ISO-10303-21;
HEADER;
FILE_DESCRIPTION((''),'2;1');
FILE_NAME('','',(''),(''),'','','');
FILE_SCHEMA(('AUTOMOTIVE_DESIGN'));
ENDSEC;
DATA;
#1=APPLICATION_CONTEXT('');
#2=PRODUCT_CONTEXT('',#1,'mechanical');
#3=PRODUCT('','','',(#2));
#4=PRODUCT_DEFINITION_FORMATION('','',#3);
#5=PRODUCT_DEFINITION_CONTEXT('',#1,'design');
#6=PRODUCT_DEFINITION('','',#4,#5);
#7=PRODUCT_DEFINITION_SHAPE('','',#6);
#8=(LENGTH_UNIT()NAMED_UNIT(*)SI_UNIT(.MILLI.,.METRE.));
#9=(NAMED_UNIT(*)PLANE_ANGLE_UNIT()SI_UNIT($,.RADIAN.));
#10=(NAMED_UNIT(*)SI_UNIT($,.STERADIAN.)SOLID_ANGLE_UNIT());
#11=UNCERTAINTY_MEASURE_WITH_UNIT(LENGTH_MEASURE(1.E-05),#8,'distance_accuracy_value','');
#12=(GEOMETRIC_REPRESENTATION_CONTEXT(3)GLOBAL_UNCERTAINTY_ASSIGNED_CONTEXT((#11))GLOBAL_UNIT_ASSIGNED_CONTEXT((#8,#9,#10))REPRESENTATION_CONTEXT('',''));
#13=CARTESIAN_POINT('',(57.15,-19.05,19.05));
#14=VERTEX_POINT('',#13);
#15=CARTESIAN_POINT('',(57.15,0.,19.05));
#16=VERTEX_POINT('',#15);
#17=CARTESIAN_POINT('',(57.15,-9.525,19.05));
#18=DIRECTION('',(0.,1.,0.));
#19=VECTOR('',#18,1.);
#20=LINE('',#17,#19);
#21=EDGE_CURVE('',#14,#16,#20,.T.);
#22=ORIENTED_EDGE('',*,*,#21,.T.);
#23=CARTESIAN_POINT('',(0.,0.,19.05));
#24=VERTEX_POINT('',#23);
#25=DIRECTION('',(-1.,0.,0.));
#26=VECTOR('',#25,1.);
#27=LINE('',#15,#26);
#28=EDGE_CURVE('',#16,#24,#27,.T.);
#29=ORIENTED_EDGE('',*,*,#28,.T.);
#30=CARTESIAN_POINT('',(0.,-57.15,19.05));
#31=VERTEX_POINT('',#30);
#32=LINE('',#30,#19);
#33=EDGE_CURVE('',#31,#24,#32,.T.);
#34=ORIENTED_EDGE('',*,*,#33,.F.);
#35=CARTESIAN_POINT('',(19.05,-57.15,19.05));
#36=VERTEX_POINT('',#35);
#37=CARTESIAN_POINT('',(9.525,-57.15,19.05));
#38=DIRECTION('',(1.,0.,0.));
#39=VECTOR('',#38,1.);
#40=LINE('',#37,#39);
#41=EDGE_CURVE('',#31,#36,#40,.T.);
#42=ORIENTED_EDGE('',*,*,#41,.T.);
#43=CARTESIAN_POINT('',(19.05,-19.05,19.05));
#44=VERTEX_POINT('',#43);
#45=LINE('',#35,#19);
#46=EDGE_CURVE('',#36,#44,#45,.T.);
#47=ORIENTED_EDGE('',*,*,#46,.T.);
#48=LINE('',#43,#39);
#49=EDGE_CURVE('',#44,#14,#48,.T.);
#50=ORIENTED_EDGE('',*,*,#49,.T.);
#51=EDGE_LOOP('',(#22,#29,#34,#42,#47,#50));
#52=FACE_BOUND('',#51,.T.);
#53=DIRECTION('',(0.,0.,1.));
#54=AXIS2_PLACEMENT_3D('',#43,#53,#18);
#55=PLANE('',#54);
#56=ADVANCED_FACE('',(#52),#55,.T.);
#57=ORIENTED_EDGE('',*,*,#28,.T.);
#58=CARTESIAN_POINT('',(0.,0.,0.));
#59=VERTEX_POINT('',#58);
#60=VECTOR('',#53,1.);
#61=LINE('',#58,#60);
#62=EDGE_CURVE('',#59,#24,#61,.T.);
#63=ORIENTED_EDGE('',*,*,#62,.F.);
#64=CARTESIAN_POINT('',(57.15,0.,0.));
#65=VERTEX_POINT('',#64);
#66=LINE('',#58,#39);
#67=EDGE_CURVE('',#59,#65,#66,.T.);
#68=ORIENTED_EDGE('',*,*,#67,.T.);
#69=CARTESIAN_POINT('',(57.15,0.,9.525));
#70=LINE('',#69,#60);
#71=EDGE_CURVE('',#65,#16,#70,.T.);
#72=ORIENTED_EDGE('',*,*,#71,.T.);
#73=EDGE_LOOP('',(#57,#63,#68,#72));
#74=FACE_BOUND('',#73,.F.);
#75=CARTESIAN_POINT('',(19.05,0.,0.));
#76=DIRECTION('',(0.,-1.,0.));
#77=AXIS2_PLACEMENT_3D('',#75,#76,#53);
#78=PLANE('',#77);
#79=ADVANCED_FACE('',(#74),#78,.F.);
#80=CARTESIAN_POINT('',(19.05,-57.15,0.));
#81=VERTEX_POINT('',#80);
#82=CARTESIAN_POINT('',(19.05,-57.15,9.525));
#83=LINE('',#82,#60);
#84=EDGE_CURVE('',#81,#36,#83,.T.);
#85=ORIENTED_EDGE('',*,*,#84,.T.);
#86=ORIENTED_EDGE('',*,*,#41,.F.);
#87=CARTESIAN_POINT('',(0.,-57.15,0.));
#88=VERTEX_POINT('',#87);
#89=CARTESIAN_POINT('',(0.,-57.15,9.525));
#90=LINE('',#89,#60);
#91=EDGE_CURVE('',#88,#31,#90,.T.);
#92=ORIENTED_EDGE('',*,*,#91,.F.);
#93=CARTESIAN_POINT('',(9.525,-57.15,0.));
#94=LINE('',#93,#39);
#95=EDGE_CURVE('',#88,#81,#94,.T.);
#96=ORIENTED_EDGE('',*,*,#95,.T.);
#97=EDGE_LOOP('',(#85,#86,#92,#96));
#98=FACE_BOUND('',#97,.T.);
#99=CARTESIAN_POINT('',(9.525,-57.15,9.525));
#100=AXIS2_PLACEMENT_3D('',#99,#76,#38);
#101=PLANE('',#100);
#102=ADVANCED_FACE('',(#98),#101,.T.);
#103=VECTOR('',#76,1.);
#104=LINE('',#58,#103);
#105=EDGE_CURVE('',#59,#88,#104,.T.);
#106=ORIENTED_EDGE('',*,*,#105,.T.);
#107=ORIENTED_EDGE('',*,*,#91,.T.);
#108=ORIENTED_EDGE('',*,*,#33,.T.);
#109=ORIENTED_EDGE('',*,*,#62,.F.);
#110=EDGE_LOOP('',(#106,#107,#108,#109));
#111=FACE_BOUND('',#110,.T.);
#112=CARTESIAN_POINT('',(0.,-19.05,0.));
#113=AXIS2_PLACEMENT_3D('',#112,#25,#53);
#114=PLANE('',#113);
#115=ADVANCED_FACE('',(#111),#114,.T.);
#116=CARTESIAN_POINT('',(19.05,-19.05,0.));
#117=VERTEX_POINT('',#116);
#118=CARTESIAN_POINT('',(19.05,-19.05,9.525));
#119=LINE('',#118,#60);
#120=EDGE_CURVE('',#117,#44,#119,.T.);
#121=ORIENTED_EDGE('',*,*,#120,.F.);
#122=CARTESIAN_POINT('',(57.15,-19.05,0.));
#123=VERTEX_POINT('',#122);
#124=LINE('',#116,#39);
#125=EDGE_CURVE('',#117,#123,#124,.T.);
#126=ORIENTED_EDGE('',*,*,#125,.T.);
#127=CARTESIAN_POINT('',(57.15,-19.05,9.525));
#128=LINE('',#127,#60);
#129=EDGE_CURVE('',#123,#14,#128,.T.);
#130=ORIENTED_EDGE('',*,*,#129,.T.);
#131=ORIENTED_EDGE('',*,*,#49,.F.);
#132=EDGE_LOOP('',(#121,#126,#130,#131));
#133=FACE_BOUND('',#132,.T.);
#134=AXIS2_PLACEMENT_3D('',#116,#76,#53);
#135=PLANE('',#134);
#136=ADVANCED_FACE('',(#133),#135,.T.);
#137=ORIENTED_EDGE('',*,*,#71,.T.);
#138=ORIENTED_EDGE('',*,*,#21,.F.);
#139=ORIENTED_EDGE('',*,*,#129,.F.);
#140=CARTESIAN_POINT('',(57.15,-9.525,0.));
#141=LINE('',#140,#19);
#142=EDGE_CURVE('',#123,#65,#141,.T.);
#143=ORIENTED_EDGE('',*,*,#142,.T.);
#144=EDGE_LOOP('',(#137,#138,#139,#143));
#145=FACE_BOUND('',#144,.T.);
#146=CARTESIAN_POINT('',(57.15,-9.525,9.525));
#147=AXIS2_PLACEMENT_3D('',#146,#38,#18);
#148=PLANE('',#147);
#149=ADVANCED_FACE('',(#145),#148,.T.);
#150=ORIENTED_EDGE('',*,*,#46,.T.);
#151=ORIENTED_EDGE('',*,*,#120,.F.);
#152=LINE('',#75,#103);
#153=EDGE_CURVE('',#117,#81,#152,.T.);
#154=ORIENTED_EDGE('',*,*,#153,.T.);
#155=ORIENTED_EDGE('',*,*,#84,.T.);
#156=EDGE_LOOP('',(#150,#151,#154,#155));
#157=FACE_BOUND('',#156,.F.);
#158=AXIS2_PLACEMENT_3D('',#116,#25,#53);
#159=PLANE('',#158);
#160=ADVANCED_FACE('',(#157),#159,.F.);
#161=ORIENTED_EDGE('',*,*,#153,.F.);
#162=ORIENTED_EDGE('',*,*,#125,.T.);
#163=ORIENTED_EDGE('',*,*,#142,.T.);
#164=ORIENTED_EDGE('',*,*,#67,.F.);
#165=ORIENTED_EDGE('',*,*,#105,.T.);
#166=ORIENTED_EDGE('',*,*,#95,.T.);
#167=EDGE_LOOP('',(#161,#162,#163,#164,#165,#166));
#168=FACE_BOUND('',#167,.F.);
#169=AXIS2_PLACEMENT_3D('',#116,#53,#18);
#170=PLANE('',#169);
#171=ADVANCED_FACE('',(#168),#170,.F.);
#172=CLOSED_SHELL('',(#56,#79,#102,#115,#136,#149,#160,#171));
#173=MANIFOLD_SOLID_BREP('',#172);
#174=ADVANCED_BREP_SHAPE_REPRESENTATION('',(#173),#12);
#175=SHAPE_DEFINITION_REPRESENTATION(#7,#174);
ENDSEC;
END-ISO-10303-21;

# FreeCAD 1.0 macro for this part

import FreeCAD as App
import Part
import Sketcher
Q = App.Units.Quantity

doc = App.newDocument("Part")
body = doc.addObject("PartDesign::Body", "Body")

# Sketch on XY plane
sketch1 = doc.addObject("Sketcher::SketchObject", "Sketch")
body.addObject(sketch1)
sketch1.AttachmentSupport = (doc.XY_Plane, [""])
sketch1.MapMode = "FlatFace"
sketch1.addGeometry([
    Part.LineSegment(App.Vector(0, 0, 0), App.Vector(0, -19, 0)),
    Part.LineSegment(App.Vector(0, -19, 0), App.Vector(19, -19, 0)),
    Part.LineSegment(App.Vector(19, -19, 0), App.Vector(19, 0, 0)),
    Part.LineSegment(App.Vector(19, 0, 0), App.Vector(0, 0, 0)),
], False)
sketch1.addConstraint([
    Sketcher.Constraint("Coincident", 0, 2, 1, 1),
    Sketcher.Constraint("Coincident", 1, 2, 2, 1),
    Sketcher.Constraint("Coincident", 2, 2, 3, 1),
    Sketcher.Constraint("Coincident", 3, 2, 0, 1),
    Sketcher.Constraint("Vertical", 0),
    Sketcher.Constraint("Horizontal", 1),
    Sketcher.Constraint("Vertical", 2),
    Sketcher.Constraint("Horizontal", 3),
    Sketcher.Constraint("Coincident", 3, 2, -1, 1),
    Sketcher.Constraint("Equal", 3, 0),
    Sketcher.Constraint("DistanceX", 1, 1, 1, 2, Q("0.75 in")),
])
pad1 = doc.addObject("PartDesign::Pad", "Pad")
body.addObject(pad1)
pad1.Profile = sketch1
pad1.Length = Q("0.75 in")

# Sketch on XZ plane
sketch2 = doc.addObject("Sketcher::SketchObject", "Sketch001")
body.addObject(sketch2)
sketch2.AttachmentSupport = (doc.XZ_Plane, [""])
sketch2.MapMode = "FlatFace"
sketch2.AttachmentOffset = App.Placement(App.Vector(0, 0, 0.75 * 25.4), App.Rotation())
sketch2.addGeometry([
    Part.LineSegment(App.Vector(0, 19, 0), App.Vector(0, 0, 0)),
    Part.LineSegment(App.Vector(0, 0, 0), App.Vector(19, 0, 0)),
    Part.LineSegment(App.Vector(19, 0, 0), App.Vector(19, 19, 0)),
    Part.LineSegment(App.Vector(19, 19, 0), App.Vector(0, 19, 0)),
], False)
sketch2.addConstraint([
    Sketcher.Constraint("Coincident", 0, 2, 1, 1),
    Sketcher.Constraint("Coincident", 1, 2, 2, 1),
    Sketcher.Constraint("Coincident", 2, 2, 3, 1),
    Sketcher.Constraint("Coincident", 3, 2, 0, 1),
    Sketcher.Constraint("Vertical", 0),
    Sketcher.Constraint("Horizontal", 1),
    Sketcher.Constraint("Vertical", 2),
    Sketcher.Constraint("Horizontal", 3),
    Sketcher.Constraint("Coincident", 0, 2, -1, 1),
    Sketcher.Constraint("Equal", 3, 0),
    Sketcher.Constraint("DistanceX", 1, 1, 1, 2, Q("0.75 in")),
])
pad2 = doc.addObject("PartDesign::Pad", "Pad001")
body.addObject(pad2)
pad2.Profile = sketch2
pad2.Length = Q("1.5 in")

# Sketch on YZ plane
sketch3 = doc.addObject("Sketcher::SketchObject", "Sketch002")
body.addObject(sketch3)
sketch3.AttachmentSupport = (doc.YZ_Plane, [""])
sketch3.MapMode = "FlatFace"
sketch3.AttachmentOffset = App.Placement(App.Vector(0, 0, 0.75 * 25.4), App.Rotation())
sketch3.addGeometry([
    Part.LineSegment(App.Vector(-19, 19, 0), App.Vector(-19, 0, 0)),
    Part.LineSegment(App.Vector(-19, 0, 0), App.Vector(0, 0, 0)),
    Part.LineSegment(App.Vector(0, 0, 0), App.Vector(0, 19, 0)),
    Part.LineSegment(App.Vector(0, 19, 0), App.Vector(-19, 19, 0)),
], False)
sketch3.addConstraint([
    Sketcher.Constraint("Coincident", 0, 2, 1, 1),
    Sketcher.Constraint("Coincident", 1, 2, 2, 1),
    Sketcher.Constraint("Coincident", 2, 2, 3, 1),
    Sketcher.Constraint("Coincident", 3, 2, 0, 1),
    Sketcher.Constraint("Vertical", 0),
    Sketcher.Constraint("Horizontal", 1),
    Sketcher.Constraint("Vertical", 2),
    Sketcher.Constraint("Horizontal", 3),
    Sketcher.Constraint("Coincident", 1, 2, -1, 1),
    Sketcher.Constraint("Equal", 3, 0),
    Sketcher.Constraint("DistanceX", 1, 1, 1, 2, Q("0.75 in")),
])
pad3 = doc.addObject("PartDesign::Pad", "Pad002")
body.addObject(pad3)
pad3.Profile = sketch3
pad3.Length = Q("1.5 in")

doc.recompute()
